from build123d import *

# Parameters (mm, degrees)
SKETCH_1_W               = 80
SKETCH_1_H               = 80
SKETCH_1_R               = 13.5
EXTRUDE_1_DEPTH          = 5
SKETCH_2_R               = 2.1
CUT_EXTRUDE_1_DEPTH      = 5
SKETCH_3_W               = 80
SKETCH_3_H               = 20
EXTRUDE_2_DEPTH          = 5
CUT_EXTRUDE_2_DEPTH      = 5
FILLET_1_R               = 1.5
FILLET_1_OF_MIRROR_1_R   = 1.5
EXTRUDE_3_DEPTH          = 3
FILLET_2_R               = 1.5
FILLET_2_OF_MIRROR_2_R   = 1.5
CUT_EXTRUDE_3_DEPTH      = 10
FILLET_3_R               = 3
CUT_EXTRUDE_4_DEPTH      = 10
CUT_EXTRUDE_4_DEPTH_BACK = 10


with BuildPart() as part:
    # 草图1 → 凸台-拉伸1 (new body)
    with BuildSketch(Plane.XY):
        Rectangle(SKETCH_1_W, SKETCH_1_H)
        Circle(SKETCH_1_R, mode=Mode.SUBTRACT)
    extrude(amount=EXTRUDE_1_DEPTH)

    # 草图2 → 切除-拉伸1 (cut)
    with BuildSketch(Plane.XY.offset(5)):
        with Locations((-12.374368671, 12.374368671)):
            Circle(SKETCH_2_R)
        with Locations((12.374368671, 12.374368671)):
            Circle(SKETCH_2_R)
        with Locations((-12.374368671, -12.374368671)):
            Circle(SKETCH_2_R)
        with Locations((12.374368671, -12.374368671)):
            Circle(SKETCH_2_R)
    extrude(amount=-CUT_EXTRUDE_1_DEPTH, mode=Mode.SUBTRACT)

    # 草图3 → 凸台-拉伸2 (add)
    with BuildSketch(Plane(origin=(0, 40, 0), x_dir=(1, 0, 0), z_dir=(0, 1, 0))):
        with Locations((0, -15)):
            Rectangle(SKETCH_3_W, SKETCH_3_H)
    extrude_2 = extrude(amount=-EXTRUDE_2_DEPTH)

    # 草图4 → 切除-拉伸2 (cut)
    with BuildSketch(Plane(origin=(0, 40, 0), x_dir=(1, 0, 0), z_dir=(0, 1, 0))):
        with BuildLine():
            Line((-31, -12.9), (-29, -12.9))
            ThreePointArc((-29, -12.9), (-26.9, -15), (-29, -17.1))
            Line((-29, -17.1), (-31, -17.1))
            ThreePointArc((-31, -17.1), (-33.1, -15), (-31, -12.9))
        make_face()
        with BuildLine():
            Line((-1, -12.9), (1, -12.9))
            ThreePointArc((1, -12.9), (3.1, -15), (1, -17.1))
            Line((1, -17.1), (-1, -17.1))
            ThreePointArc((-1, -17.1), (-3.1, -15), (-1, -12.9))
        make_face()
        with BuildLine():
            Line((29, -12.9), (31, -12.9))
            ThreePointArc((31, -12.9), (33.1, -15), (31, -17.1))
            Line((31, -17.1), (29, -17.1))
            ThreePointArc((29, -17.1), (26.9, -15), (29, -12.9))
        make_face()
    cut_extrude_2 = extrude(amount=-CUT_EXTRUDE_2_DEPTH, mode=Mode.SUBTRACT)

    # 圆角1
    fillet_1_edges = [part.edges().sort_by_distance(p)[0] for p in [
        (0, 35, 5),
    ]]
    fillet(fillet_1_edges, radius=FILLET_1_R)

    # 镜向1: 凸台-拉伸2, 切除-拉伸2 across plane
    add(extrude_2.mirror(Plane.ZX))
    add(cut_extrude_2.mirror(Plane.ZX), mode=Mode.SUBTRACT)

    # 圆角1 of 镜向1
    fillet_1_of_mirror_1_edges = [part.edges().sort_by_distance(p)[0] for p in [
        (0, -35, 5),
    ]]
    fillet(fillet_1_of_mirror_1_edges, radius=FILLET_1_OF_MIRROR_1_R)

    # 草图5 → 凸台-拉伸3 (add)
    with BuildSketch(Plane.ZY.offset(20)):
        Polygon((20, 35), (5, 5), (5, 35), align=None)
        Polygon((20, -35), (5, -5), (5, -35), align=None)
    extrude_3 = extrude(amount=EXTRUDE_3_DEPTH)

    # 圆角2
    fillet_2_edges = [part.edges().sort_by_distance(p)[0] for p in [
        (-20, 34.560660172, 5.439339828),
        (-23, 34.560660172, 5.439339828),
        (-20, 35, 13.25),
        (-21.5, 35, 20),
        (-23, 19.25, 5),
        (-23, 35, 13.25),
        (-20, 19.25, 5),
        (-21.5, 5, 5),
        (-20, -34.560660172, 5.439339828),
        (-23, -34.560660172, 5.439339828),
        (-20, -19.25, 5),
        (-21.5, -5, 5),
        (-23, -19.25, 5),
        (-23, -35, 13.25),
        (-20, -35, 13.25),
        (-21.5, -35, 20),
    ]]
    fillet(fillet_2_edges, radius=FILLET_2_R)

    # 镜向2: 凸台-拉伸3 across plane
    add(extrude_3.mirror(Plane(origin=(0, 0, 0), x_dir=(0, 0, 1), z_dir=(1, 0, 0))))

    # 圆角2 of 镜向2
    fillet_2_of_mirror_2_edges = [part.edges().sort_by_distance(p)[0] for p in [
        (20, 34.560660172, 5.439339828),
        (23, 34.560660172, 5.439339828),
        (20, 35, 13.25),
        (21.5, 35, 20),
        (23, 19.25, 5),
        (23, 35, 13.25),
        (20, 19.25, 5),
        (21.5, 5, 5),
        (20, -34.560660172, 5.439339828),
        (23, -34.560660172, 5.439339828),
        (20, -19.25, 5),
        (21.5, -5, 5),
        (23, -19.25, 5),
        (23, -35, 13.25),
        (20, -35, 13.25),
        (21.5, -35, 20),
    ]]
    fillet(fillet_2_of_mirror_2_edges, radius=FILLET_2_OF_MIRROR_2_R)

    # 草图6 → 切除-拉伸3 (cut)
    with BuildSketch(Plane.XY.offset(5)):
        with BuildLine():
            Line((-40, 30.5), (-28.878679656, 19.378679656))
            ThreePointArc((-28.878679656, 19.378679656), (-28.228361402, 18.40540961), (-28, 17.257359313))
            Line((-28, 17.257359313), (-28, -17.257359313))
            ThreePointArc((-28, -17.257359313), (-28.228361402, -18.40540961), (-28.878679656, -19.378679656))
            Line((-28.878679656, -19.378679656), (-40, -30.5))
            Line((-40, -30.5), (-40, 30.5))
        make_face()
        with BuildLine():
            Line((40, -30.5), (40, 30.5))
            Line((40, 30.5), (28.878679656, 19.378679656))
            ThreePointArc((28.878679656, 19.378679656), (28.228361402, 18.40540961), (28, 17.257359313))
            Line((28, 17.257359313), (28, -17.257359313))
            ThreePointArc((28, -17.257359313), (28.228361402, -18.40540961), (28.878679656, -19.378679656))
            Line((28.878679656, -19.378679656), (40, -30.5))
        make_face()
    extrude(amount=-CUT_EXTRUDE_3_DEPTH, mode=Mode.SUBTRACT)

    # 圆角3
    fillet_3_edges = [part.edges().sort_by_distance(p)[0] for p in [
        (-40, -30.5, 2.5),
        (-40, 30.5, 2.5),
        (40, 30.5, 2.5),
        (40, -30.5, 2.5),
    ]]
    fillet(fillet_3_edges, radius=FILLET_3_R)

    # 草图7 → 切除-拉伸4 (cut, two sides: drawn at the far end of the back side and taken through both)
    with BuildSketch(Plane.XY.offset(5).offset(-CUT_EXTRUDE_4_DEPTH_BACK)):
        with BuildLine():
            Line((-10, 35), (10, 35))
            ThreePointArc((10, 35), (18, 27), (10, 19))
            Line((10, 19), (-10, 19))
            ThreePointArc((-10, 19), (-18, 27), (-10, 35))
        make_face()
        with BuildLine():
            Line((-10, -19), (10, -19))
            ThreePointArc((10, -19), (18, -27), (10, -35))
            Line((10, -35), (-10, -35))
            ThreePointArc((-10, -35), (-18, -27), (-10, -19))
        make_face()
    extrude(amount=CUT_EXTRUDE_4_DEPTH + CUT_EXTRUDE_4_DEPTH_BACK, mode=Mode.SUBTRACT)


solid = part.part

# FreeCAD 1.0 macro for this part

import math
import FreeCAD as App
import Part
import Sketcher


def edges_at(feature, points):
    """Names of the edges that pass closest to the given points."""
    edges = feature.Shape.Edges
    near = lambda p: min(range(len(edges)), key=lambda i: edges[i].distToShape(Part.Vertex(*p))[0])
    return sorted({f"Edge{near(p) + 1}" for p in points})

doc = App.newDocument("Part")
params = doc.addObject("Spreadsheet::Sheet", "Params")
for row, (alias, value) in enumerate([
    ("sketch1_diameter", "27 mm"),
    ("sketch1_width", "80 mm"),
    ("pad1_length", "5 mm"),
    ("sketch2_diameter", "4.2 mm"),
    ("pocket1_length", "5 mm"),
    ("sketch3_width", "80 mm"),
    ("sketch3_height", "20 mm"),
    ("pad2_length", "5 mm"),
    ("sketch4_radius", "2.1 mm"),
    ("sketch4_width", "2 mm"),
    ("pocket2_length", "5 mm"),
    ("fillet_radius", "1.5 mm"),
    ("fillet2_radius", "1.5 mm"),
    ("sketch5_width", "30 mm"),
    ("sketch5_height", "15 mm"),
    ("pad3_length", "3 mm"),
    ("fillet3_radius", "1.5 mm"),
    ("fillet4_radius", "1.5 mm"),
    ("sketch6_radius", "3 mm"),
    ("sketch6_height", "61 mm"),
    ("pocket3_length", "10 mm"),
    ("fillet5_radius", "3 mm"),
    ("sketch7_radius", "8 mm"),
    ("sketch7_width", "20 mm"),
], start=1):
    params.set(f"A{row}", alias)
    params.set(f"B{row}", "=" + value)
    params.setAlias(f"B{row}", alias)

body = doc.addObject("PartDesign::Body", "Body")

sketch1 = doc.addObject("Sketcher::SketchObject", "Sketch")
body.addObject(sketch1)
sketch1.AttachmentSupport = (doc.XY_Plane, [""])
sketch1.MapMode = "FlatFace"
sketch1.addGeometry([
    Part.LineSegment(App.Vector(-40, 40, 0), App.Vector(-40, -40, 0)),
    Part.LineSegment(App.Vector(-40, -40, 0), App.Vector(40, -40, 0)),
    Part.LineSegment(App.Vector(40, -40, 0), App.Vector(40, 40, 0)),
    Part.LineSegment(App.Vector(40, 40, 0), App.Vector(-40, 40, 0)),
    Part.Circle(App.Vector(0, 0, 0), App.Vector(0, 0, 1), 13.5),
], False)
sketch1.addConstraint([
    Sketcher.Constraint("Coincident", 0, 2, 1, 1),
    Sketcher.Constraint("Coincident", 1, 2, 2, 1),
    Sketcher.Constraint("Coincident", 2, 2, 3, 1),
    Sketcher.Constraint("Coincident", 3, 2, 0, 1),
    Sketcher.Constraint("Vertical", 0),
    Sketcher.Constraint("Horizontal", 1),
    Sketcher.Constraint("Vertical", 2),
    Sketcher.Constraint("Horizontal", 3),
    Sketcher.Constraint("Coincident", 4, 3, -1, 1),
    Sketcher.Constraint("Symmetric", 0, 2, 2, 2, -1, 1),
    Sketcher.Constraint("Equal", 3, 0),
    Sketcher.Constraint("Diameter", 4, 27.0),
    Sketcher.Constraint("DistanceX", 1, 1, 1, 2, 80.0),
])
sketch1.setExpression("Constraints[11]", "Params.sketch1_diameter")
sketch1.setExpression("Constraints[12]", "Params.sketch1_width")
pad1 = doc.addObject("PartDesign::Pad", "Pad")
body.addObject(pad1)
pad1.Profile = sketch1
pad1.setExpression("Length", "Params.pad1_length")

sketch2 = doc.addObject("Sketcher::SketchObject", "Sketch001")
body.addObject(sketch2)
sketch2.AttachmentSupport = (doc.XY_Plane, [""])
sketch2.MapMode = "FlatFace"
sketch2.AttachmentOffset = App.Placement(App.Vector(0, 0, 5), App.Rotation())
sketch2.addGeometry([
    Part.Circle(App.Vector(-12.374369, 12.374369, 0), App.Vector(0, 0, 1), 2.1),
    Part.Circle(App.Vector(12.374369, 12.374369, 0), App.Vector(0, 0, 1), 2.1),
    Part.Circle(App.Vector(-12.374369, -12.374369, 0), App.Vector(0, 0, 1), 2.1),
    Part.Circle(App.Vector(12.374369, -12.374369, 0), App.Vector(0, 0, 1), 2.1),
], False)
sketch2.addConstraint([
    Sketcher.Constraint("Equal", 0, 1),
    Sketcher.Constraint("Equal", 1, 2),
    Sketcher.Constraint("Equal", 2, 3),
    Sketcher.Constraint("Symmetric", 1, 3, 2, 3, -1, 1),
    Sketcher.Constraint("Symmetric", 0, 3, 3, 3, -1, 1),
    Sketcher.Constraint("Symmetric", 0, 3, 1, 3, -2),
    Sketcher.Constraint("Diameter", 0, 4.2),
    Sketcher.Constraint("DistanceX", 0, 3, -1, 1, 12.374369),
    Sketcher.Constraint("DistanceY", -1, 1, 0, 3, 12.374369),
])
sketch2.setExpression("Constraints[6]", "Params.sketch2_diameter")
pocket1 = doc.addObject("PartDesign::Pocket", "Pocket")
body.addObject(pocket1)
pocket1.Profile = sketch2
pocket1.setExpression("Length", "Params.pocket1_length")

sketch3 = doc.addObject("Sketcher::SketchObject", "Sketch002")
body.addObject(sketch3)
sketch3.AttachmentSupport = (doc.XZ_Plane, [""])
sketch3.MapMode = "FlatFace"
sketch3.AttachmentOffset = App.Placement(App.Vector(0, 0, -40), App.Rotation())
sketch3.addGeometry([
    Part.LineSegment(App.Vector(-40, 5, 0), App.Vector(-40, 25, 0)),
    Part.LineSegment(App.Vector(-40, 25, 0), App.Vector(40, 25, 0)),
    Part.LineSegment(App.Vector(40, 25, 0), App.Vector(40, 5, 0)),
    Part.LineSegment(App.Vector(40, 5, 0), App.Vector(-40, 5, 0)),
], False)
sketch3.addConstraint([
    Sketcher.Constraint("Coincident", 0, 2, 1, 1),
    Sketcher.Constraint("Coincident", 1, 2, 2, 1),
    Sketcher.Constraint("Coincident", 2, 2, 3, 1),
    Sketcher.Constraint("Coincident", 3, 2, 0, 1),
    Sketcher.Constraint("Vertical", 0),
    Sketcher.Constraint("Horizontal", 1),
    Sketcher.Constraint("Vertical", 2),
    Sketcher.Constraint("Horizontal", 3),
    Sketcher.Constraint("DistanceX", 1, 1, 1, 2, 80.0),
    Sketcher.Constraint("DistanceY", 0, 1, 0, 2, 20.0),
    Sketcher.Constraint("DistanceX", 0, 2, -1, 1, 40.0),
    Sketcher.Constraint("DistanceY", -1, 1, 0, 2, 25.0),
])
sketch3.setExpression("Constraints[8]", "Params.sketch3_width")
sketch3.setExpression("Constraints[9]", "Params.sketch3_height")
pad2 = doc.addObject("PartDesign::Pad", "Pad001")
body.addObject(pad2)
pad2.Profile = sketch3
pad2.setExpression("Length", "Params.pad2_length")

sketch4 = doc.addObject("Sketcher::SketchObject", "Sketch003")
body.addObject(sketch4)
sketch4.AttachmentSupport = (doc.XZ_Plane, [""])
sketch4.MapMode = "FlatFace"
sketch4.AttachmentOffset = App.Placement(App.Vector(0, 0, -40), App.Rotation())
sketch4.addGeometry([
    Part.LineSegment(App.Vector(-29, 12.9, 0), App.Vector(-31, 12.9, 0)),
    Part.ArcOfCircle(Part.Circle(App.Vector(-31, 15, 0), App.Vector(0, 0, 1), 2.1), math.radians(90), math.radians(270)),
    Part.LineSegment(App.Vector(-31, 17.1, 0), App.Vector(-29, 17.1, 0)),
    Part.ArcOfCircle(Part.Circle(App.Vector(-29, 15, 0), App.Vector(0, 0, 1), 2.1), math.radians(-90), math.radians(90)),
    Part.LineSegment(App.Vector(1, 12.9, 0), App.Vector(-1, 12.9, 0)),
    Part.ArcOfCircle(Part.Circle(App.Vector(-1, 15, 0), App.Vector(0, 0, 1), 2.1), math.radians(90), math.radians(270)),
    Part.LineSegment(App.Vector(-1, 17.1, 0), App.Vector(1, 17.1, 0)),
    Part.ArcOfCircle(Part.Circle(App.Vector(1, 15, 0), App.Vector(0, 0, 1), 2.1), math.radians(-90), math.radians(90)),
    Part.LineSegment(App.Vector(31, 12.9, 0), App.Vector(29, 12.9, 0)),
    Part.ArcOfCircle(Part.Circle(App.Vector(29, 15, 0), App.Vector(0, 0, 1), 2.1), math.radians(90), math.radians(270)),
    Part.LineSegment(App.Vector(29, 17.1, 0), App.Vector(31, 17.1, 0)),
    Part.ArcOfCircle(Part.Circle(App.Vector(31, 15, 0), App.Vector(0, 0, 1), 2.1), math.radians(-90), math.radians(90)),
], False)
sketch4.addConstraint([
    Sketcher.Constraint("Tangent", 0, 2, 1, 2),
    Sketcher.Constraint("Tangent", 1, 1, 2, 1),
    Sketcher.Constraint("Tangent", 2, 2, 3, 2),
    Sketcher.Constraint("Tangent", 3, 1, 0, 1),
    Sketcher.Constraint("Tangent", 4, 2, 5, 2),
    Sketcher.Constraint("Tangent", 5, 1, 6, 1),
    Sketcher.Constraint("Tangent", 6, 2, 7, 2),
    Sketcher.Constraint("Tangent", 7, 1, 4, 1),
    Sketcher.Constraint("Tangent", 8, 2, 9, 2),
    Sketcher.Constraint("Tangent", 9, 1, 10, 1),
    Sketcher.Constraint("Tangent", 10, 2, 11, 2),
    Sketcher.Constraint("Tangent", 11, 1, 8, 1),
    Sketcher.Constraint("Horizontal", 0),
    Sketcher.Constraint("Horizontal", 2),
    Sketcher.Constraint("Horizontal", 4),
    Sketcher.Constraint("Horizontal", 6),
    Sketcher.Constraint("Horizontal", 8),
    Sketcher.Constraint("Horizontal", 10),
    Sketcher.Constraint("Equal", 3, 5),
    Sketcher.Constraint("Equal", 7, 9),
    Sketcher.Constraint("Symmetric", 3, 3, 9, 3, -2),
    Sketcher.Constraint("Horizontal", 3, 3, 5, 3),
    Sketcher.Constraint("Equal", 2, 4),
    Sketcher.Constraint("Equal", 6, 8),
    Sketcher.Constraint("Radius", 1, 2.1),
    Sketcher.Constraint("DistanceX", 0, 2, 0, 1, 2.0),
    Sketcher.Constraint("DistanceX", 1, 3, -1, 1, 31.0),
    Sketcher.Constraint("DistanceY", -1, 1, 1, 3, 15.0),
    Sketcher.Constraint("DistanceX", 5, 3, -1, 1, 1.0),
])
sketch4.setExpression("Constraints[24]", "Params.sketch4_radius")
sketch4.setExpression("Constraints[25]", "Params.sketch4_width")
pocket2 = doc.addObject("PartDesign::Pocket", "Pocket001")
body.addObject(pocket2)
pocket2.Profile = sketch4
pocket2.setExpression("Length", "Params.pocket2_length")
pocket2.Reversed = True
doc.recompute()

fillet = doc.addObject("PartDesign::Fillet", "Fillet")
body.addObject(fillet)
fillet.Base = (pocket2, edges_at(pocket2, [(0, 35, 5)]))
fillet.setExpression("Radius", "Params.fillet_radius")
doc.recompute()

mirrored = doc.addObject("PartDesign::Mirrored", "Mirrored")
body.addObject(mirrored)
mirrored.Originals = [pad2, pocket2]
mirrored.MirrorPlane = (doc.XZ_Plane, [""])
body.Tip = mirrored
doc.recompute()

fillet2 = doc.addObject("PartDesign::Fillet", "Fillet001")
body.addObject(fillet2)
fillet2.Base = (mirrored, edges_at(mirrored, [(0, -35, 5)]))
fillet2.setExpression("Radius", "Params.fillet2_radius")

sketch5 = doc.addObject("Sketcher::SketchObject", "Sketch004")
body.addObject(sketch5)
sketch5.AttachmentSupport = (doc.YZ_Plane, [""])
sketch5.MapMode = "FlatFace"
sketch5.AttachmentOffset = App.Placement(App.Vector(0, 0, -20), App.Rotation())
sketch5.addGeometry([
    Part.LineSegment(App.Vector(5, 5, 0), App.Vector(35, 20, 0)),
    Part.LineSegment(App.Vector(35, 20, 0), App.Vector(35, 5, 0)),
    Part.LineSegment(App.Vector(35, 5, 0), App.Vector(5, 5, 0)),
    Part.LineSegment(App.Vector(-35, 20, 0), App.Vector(-5, 5, 0)),
    Part.LineSegment(App.Vector(-5, 5, 0), App.Vector(-35, 5, 0)),
    Part.LineSegment(App.Vector(-35, 5, 0), App.Vector(-35, 20, 0)),
], False)
sketch5.addConstraint([
    Sketcher.Constraint("Coincident", 0, 2, 1, 1),
    Sketcher.Constraint("Coincident", 1, 2, 2, 1),
    Sketcher.Constraint("Coincident", 2, 2, 0, 1),
    Sketcher.Constraint("Coincident", 3, 2, 4, 1),
    Sketcher.Constraint("Coincident", 4, 2, 5, 1),
    Sketcher.Constraint("Coincident", 5, 2, 3, 1),
    Sketcher.Constraint("Vertical", 1),
    Sketcher.Constraint("Horizontal", 2),
    Sketcher.Constraint("Horizontal", 4),
    Sketcher.Constraint("Vertical", 5),
    Sketcher.Constraint("Symmetric", 2, 2, 3, 2, -2),
    Sketcher.Constraint("Symmetric", 0, 2, 5, 2, -2),
    Sketcher.Constraint("DistanceX", 2, 2, 2, 1, 30.0),
    Sketcher.Constraint("DistanceY", 1, 2, 1, 1, 15.0),
    Sketcher.Constraint("DistanceX", -1, 1, 0, 2, 35.0),
    Sketcher.Constraint("DistanceY", -1, 1, 0, 2, 20.0),
])
sketch5.setExpression("Constraints[12]", "Params.sketch5_width")
sketch5.setExpression("Constraints[13]", "Params.sketch5_height")
pad3 = doc.addObject("PartDesign::Pad", "Pad002")
body.addObject(pad3)
pad3.Profile = sketch5
pad3.setExpression("Length", "Params.pad3_length")
pad3.Reversed = True
doc.recompute()

fillet3 = doc.addObject("PartDesign::Fillet", "Fillet002")
body.addObject(fillet3)
fillet3.Base = (pad3, edges_at(pad3, [
    (-20, 34.561, 5.439),
    (-23, 34.561, 5.439),
    (-20, 35, 13.25),
    (-21.5, 35, 20),
    (-23, 19.25, 5),
    (-23, 35, 13.25),
    (-20, 19.25, 5),
    (-21.5, 5, 5),
    (-20, -34.561, 5.439),
    (-23, -34.561, 5.439),
    (-20, -19.25, 5),
    (-21.5, -5, 5),
    (-23, -19.25, 5),
    (-23, -35, 13.25),
    (-20, -35, 13.25),
    (-21.5, -35, 20),
]))
fillet3.setExpression("Radius", "Params.fillet3_radius")
doc.recompute()

mirrored2 = doc.addObject("PartDesign::Mirrored", "Mirrored001")
body.addObject(mirrored2)
mirrored2.Originals = [pad3]
mirrored2.MirrorPlane = (doc.YZ_Plane, [""])
body.Tip = mirrored2
doc.recompute()

fillet4 = doc.addObject("PartDesign::Fillet", "Fillet003")
body.addObject(fillet4)
fillet4.Base = (mirrored2, edges_at(mirrored2, [
    (20, 34.561, 5.439),
    (23, 34.561, 5.439),
    (20, 35, 13.25),
    (21.5, 35, 20),
    (23, 19.25, 5),
    (23, 35, 13.25),
    (20, 19.25, 5),
    (21.5, 5, 5),
    (20, -34.561, 5.439),
    (23, -34.561, 5.439),
    (20, -19.25, 5),
    (21.5, -5, 5),
    (23, -19.25, 5),
    (23, -35, 13.25),
    (20, -35, 13.25),
    (21.5, -35, 20),
]))
fillet4.setExpression("Radius", "Params.fillet4_radius")

sketch6 = doc.addObject("Sketcher::SketchObject", "Sketch005")
body.addObject(sketch6)
sketch6.AttachmentSupport = (doc.XY_Plane, [""])
sketch6.MapMode = "FlatFace"
sketch6.AttachmentOffset = App.Placement(App.Vector(0, 0, 5), App.Rotation())
sketch6.addGeometry([
    Part.LineSegment(App.Vector(-28.87868, 19.37868, 0), App.Vector(-40, 30.5, 0)),
    Part.LineSegment(App.Vector(-40, 30.5, 0), App.Vector(-40, -30.5, 0)),
    Part.LineSegment(App.Vector(-40, -30.5, 0), App.Vector(-28.87868, -19.37868, 0)),
    Part.ArcOfCircle(Part.Circle(App.Vector(-31, -17.257359, 0), App.Vector(0, 0, 1), 3), math.radians(-45), math.radians(0)),
    Part.LineSegment(App.Vector(-28, -17.257359, 0), App.Vector(-28, 17.257359, 0)),
    Part.ArcOfCircle(Part.Circle(App.Vector(-31, 17.257359, 0), App.Vector(0, 0, 1), 3), math.radians(0), math.radians(45)),
    Part.LineSegment(App.Vector(40, -30.5, 0), App.Vector(40, 30.5, 0)),
    Part.LineSegment(App.Vector(40, 30.5, 0), App.Vector(28.87868, 19.37868, 0)),
    Part.ArcOfCircle(Part.Circle(App.Vector(31, 17.257359, 0), App.Vector(0, 0, 1), 3), math.radians(135), math.radians(180)),
    Part.LineSegment(App.Vector(28, 17.257359, 0), App.Vector(28, -17.257359, 0)),
    Part.ArcOfCircle(Part.Circle(App.Vector(31, -17.257359, 0), App.Vector(0, 0, 1), 3), math.radians(180), math.radians(225)),
    Part.LineSegment(App.Vector(28.87868, -19.37868, 0), App.Vector(40, -30.5, 0)),
], False)
sketch6.addConstraint([
    Sketcher.Constraint("Coincident", 0, 2, 1, 1),
    Sketcher.Constraint("Coincident", 1, 2, 2, 1),
    Sketcher.Constraint("Tangent", 2, 2, 3, 1),
    Sketcher.Constraint("Tangent", 3, 2, 4, 1),
    Sketcher.Constraint("Tangent", 4, 2, 5, 1),
    Sketcher.Constraint("Tangent", 5, 2, 0, 1),
    Sketcher.Constraint("Coincident", 6, 2, 7, 1),
    Sketcher.Constraint("Tangent", 7, 2, 8, 1),
    Sketcher.Constraint("Tangent", 8, 2, 9, 1),
    Sketcher.Constraint("Tangent", 9, 2, 10, 1),
    Sketcher.Constraint("Tangent", 10, 2, 11, 1),
    Sketcher.Constraint("Coincident", 11, 2, 6, 1),
    Sketcher.Constraint("Vertical", 1),
    Sketcher.Constraint("Vertical", 4),
    Sketcher.Constraint("Vertical", 6),
    Sketcher.Constraint("Vertical", 9),
    Sketcher.Constraint("Equal", 3, 5),
    Sketcher.Constraint("Equal", 5, 8),
    Sketcher.Constraint("Equal", 8, 10),
    Sketcher.Constraint("Symmetric", 3, 3, 8, 3, -1, 1),
    Sketcher.Constraint("Symmetric", 1, 2, 6, 2, -1, 1),
    Sketcher.Constraint("Symmetric", 5, 2, 10, 2, -1, 1),
    Sketcher.Constraint("Symmetric", 5, 2, 7, 2, -2),
    Sketcher.Constraint("Perpendicular", 0, 2),
    Sketcher.Constraint("Radius", 3, 3.0),
    Sketcher.Constraint("DistanceY", 1, 2, 1, 1, 61.0),
    Sketcher.Constraint("DistanceX", 3, 3, -1, 1, 31.0),
    Sketcher.Constraint("DistanceX", 0, 2, -1, 1, 40.0),
])
sketch6.setExpression("Constraints[24]", "Params.sketch6_radius")
sketch6.setExpression("Constraints[25]", "Params.sketch6_height")
pocket3 = doc.addObject("PartDesign::Pocket", "Pocket002")
body.addObject(pocket3)
pocket3.Profile = sketch6
pocket3.setExpression("Length", "Params.pocket3_length")
doc.recompute()

fillet5 = doc.addObject("PartDesign::Fillet", "Fillet004")
body.addObject(fillet5)
fillet5.Base = (pocket3, edges_at(pocket3, [
    (-40, -30.5, 2.5),
    (-40, 30.5, 2.5),
    (40, 30.5, 2.5),
    (40, -30.5, 2.5),
]))
fillet5.setExpression("Radius", "Params.fillet5_radius")

sketch7 = doc.addObject("Sketcher::SketchObject", "Sketch006")
body.addObject(sketch7)
sketch7.AttachmentSupport = (doc.XY_Plane, [""])
sketch7.MapMode = "FlatFace"
sketch7.AttachmentOffset = App.Placement(App.Vector(0, 0, 5), App.Rotation())
sketch7.addGeometry([
    Part.LineSegment(App.Vector(10, 35, 0), App.Vector(-10, 35, 0)),
    Part.ArcOfCircle(Part.Circle(App.Vector(-10, 27, 0), App.Vector(0, 0, 1), 8), math.radians(90), math.radians(270)),
    Part.LineSegment(App.Vector(-10, 19, 0), App.Vector(10, 19, 0)),
    Part.ArcOfCircle(Part.Circle(App.Vector(10, 27, 0), App.Vector(0, 0, 1), 8), math.radians(-90), math.radians(90)),
    Part.LineSegment(App.Vector(10, -19, 0), App.Vector(-10, -19, 0)),
    Part.ArcOfCircle(Part.Circle(App.Vector(-10, -27, 0), App.Vector(0, 0, 1), 8), math.radians(90), math.radians(270)),
    Part.LineSegment(App.Vector(-10, -35, 0), App.Vector(10, -35, 0)),
    Part.ArcOfCircle(Part.Circle(App.Vector(10, -27, 0), App.Vector(0, 0, 1), 8), math.radians(-90), math.radians(90)),
], False)
sketch7.addConstraint([
    Sketcher.Constraint("Tangent", 0, 2, 1, 1),
    Sketcher.Constraint("Tangent", 1, 2, 2, 1),
    Sketcher.Constraint("Tangent", 2, 2, 3, 1),
    Sketcher.Constraint("Tangent", 3, 2, 0, 1),
    Sketcher.Constraint("Tangent", 4, 2, 5, 1),
    Sketcher.Constraint("Tangent", 5, 2, 6, 1),
    Sketcher.Constraint("Tangent", 6, 2, 7, 1),
    Sketcher.Constraint("Tangent", 7, 2, 4, 1),
    Sketcher.Constraint("Horizontal", 0),
    Sketcher.Constraint("Horizontal", 2),
    Sketcher.Constraint("Horizontal", 4),
    Sketcher.Constraint("Horizontal", 6),
    Sketcher.Constraint("Equal", 3, 5),
    Sketcher.Constraint("Symmetric", 3, 3, 5, 3, -1, 1),
    Sketcher.Constraint("Vertical", 1, 3, 5, 3),
    Sketcher.Constraint("Vertical", 3, 3, 7, 3),
    Sketcher.Constraint("Radius", 1, 8.0),
    Sketcher.Constraint("DistanceX", 0, 2, 0, 1, 20.0),
    Sketcher.Constraint("DistanceY", -1, 1, 1, 3, 27.0),
])
sketch7.setExpression("Constraints[16]", "Params.sketch7_radius")
sketch7.setExpression("Constraints[17]", "Params.sketch7_width")
pocket4 = doc.addObject("PartDesign::Pocket", "Pocket003")
body.addObject(pocket4)
pocket4.Profile = sketch7
pocket4.Type = "ThroughAll"
pocket4.Midplane = True

doc.recompute()
